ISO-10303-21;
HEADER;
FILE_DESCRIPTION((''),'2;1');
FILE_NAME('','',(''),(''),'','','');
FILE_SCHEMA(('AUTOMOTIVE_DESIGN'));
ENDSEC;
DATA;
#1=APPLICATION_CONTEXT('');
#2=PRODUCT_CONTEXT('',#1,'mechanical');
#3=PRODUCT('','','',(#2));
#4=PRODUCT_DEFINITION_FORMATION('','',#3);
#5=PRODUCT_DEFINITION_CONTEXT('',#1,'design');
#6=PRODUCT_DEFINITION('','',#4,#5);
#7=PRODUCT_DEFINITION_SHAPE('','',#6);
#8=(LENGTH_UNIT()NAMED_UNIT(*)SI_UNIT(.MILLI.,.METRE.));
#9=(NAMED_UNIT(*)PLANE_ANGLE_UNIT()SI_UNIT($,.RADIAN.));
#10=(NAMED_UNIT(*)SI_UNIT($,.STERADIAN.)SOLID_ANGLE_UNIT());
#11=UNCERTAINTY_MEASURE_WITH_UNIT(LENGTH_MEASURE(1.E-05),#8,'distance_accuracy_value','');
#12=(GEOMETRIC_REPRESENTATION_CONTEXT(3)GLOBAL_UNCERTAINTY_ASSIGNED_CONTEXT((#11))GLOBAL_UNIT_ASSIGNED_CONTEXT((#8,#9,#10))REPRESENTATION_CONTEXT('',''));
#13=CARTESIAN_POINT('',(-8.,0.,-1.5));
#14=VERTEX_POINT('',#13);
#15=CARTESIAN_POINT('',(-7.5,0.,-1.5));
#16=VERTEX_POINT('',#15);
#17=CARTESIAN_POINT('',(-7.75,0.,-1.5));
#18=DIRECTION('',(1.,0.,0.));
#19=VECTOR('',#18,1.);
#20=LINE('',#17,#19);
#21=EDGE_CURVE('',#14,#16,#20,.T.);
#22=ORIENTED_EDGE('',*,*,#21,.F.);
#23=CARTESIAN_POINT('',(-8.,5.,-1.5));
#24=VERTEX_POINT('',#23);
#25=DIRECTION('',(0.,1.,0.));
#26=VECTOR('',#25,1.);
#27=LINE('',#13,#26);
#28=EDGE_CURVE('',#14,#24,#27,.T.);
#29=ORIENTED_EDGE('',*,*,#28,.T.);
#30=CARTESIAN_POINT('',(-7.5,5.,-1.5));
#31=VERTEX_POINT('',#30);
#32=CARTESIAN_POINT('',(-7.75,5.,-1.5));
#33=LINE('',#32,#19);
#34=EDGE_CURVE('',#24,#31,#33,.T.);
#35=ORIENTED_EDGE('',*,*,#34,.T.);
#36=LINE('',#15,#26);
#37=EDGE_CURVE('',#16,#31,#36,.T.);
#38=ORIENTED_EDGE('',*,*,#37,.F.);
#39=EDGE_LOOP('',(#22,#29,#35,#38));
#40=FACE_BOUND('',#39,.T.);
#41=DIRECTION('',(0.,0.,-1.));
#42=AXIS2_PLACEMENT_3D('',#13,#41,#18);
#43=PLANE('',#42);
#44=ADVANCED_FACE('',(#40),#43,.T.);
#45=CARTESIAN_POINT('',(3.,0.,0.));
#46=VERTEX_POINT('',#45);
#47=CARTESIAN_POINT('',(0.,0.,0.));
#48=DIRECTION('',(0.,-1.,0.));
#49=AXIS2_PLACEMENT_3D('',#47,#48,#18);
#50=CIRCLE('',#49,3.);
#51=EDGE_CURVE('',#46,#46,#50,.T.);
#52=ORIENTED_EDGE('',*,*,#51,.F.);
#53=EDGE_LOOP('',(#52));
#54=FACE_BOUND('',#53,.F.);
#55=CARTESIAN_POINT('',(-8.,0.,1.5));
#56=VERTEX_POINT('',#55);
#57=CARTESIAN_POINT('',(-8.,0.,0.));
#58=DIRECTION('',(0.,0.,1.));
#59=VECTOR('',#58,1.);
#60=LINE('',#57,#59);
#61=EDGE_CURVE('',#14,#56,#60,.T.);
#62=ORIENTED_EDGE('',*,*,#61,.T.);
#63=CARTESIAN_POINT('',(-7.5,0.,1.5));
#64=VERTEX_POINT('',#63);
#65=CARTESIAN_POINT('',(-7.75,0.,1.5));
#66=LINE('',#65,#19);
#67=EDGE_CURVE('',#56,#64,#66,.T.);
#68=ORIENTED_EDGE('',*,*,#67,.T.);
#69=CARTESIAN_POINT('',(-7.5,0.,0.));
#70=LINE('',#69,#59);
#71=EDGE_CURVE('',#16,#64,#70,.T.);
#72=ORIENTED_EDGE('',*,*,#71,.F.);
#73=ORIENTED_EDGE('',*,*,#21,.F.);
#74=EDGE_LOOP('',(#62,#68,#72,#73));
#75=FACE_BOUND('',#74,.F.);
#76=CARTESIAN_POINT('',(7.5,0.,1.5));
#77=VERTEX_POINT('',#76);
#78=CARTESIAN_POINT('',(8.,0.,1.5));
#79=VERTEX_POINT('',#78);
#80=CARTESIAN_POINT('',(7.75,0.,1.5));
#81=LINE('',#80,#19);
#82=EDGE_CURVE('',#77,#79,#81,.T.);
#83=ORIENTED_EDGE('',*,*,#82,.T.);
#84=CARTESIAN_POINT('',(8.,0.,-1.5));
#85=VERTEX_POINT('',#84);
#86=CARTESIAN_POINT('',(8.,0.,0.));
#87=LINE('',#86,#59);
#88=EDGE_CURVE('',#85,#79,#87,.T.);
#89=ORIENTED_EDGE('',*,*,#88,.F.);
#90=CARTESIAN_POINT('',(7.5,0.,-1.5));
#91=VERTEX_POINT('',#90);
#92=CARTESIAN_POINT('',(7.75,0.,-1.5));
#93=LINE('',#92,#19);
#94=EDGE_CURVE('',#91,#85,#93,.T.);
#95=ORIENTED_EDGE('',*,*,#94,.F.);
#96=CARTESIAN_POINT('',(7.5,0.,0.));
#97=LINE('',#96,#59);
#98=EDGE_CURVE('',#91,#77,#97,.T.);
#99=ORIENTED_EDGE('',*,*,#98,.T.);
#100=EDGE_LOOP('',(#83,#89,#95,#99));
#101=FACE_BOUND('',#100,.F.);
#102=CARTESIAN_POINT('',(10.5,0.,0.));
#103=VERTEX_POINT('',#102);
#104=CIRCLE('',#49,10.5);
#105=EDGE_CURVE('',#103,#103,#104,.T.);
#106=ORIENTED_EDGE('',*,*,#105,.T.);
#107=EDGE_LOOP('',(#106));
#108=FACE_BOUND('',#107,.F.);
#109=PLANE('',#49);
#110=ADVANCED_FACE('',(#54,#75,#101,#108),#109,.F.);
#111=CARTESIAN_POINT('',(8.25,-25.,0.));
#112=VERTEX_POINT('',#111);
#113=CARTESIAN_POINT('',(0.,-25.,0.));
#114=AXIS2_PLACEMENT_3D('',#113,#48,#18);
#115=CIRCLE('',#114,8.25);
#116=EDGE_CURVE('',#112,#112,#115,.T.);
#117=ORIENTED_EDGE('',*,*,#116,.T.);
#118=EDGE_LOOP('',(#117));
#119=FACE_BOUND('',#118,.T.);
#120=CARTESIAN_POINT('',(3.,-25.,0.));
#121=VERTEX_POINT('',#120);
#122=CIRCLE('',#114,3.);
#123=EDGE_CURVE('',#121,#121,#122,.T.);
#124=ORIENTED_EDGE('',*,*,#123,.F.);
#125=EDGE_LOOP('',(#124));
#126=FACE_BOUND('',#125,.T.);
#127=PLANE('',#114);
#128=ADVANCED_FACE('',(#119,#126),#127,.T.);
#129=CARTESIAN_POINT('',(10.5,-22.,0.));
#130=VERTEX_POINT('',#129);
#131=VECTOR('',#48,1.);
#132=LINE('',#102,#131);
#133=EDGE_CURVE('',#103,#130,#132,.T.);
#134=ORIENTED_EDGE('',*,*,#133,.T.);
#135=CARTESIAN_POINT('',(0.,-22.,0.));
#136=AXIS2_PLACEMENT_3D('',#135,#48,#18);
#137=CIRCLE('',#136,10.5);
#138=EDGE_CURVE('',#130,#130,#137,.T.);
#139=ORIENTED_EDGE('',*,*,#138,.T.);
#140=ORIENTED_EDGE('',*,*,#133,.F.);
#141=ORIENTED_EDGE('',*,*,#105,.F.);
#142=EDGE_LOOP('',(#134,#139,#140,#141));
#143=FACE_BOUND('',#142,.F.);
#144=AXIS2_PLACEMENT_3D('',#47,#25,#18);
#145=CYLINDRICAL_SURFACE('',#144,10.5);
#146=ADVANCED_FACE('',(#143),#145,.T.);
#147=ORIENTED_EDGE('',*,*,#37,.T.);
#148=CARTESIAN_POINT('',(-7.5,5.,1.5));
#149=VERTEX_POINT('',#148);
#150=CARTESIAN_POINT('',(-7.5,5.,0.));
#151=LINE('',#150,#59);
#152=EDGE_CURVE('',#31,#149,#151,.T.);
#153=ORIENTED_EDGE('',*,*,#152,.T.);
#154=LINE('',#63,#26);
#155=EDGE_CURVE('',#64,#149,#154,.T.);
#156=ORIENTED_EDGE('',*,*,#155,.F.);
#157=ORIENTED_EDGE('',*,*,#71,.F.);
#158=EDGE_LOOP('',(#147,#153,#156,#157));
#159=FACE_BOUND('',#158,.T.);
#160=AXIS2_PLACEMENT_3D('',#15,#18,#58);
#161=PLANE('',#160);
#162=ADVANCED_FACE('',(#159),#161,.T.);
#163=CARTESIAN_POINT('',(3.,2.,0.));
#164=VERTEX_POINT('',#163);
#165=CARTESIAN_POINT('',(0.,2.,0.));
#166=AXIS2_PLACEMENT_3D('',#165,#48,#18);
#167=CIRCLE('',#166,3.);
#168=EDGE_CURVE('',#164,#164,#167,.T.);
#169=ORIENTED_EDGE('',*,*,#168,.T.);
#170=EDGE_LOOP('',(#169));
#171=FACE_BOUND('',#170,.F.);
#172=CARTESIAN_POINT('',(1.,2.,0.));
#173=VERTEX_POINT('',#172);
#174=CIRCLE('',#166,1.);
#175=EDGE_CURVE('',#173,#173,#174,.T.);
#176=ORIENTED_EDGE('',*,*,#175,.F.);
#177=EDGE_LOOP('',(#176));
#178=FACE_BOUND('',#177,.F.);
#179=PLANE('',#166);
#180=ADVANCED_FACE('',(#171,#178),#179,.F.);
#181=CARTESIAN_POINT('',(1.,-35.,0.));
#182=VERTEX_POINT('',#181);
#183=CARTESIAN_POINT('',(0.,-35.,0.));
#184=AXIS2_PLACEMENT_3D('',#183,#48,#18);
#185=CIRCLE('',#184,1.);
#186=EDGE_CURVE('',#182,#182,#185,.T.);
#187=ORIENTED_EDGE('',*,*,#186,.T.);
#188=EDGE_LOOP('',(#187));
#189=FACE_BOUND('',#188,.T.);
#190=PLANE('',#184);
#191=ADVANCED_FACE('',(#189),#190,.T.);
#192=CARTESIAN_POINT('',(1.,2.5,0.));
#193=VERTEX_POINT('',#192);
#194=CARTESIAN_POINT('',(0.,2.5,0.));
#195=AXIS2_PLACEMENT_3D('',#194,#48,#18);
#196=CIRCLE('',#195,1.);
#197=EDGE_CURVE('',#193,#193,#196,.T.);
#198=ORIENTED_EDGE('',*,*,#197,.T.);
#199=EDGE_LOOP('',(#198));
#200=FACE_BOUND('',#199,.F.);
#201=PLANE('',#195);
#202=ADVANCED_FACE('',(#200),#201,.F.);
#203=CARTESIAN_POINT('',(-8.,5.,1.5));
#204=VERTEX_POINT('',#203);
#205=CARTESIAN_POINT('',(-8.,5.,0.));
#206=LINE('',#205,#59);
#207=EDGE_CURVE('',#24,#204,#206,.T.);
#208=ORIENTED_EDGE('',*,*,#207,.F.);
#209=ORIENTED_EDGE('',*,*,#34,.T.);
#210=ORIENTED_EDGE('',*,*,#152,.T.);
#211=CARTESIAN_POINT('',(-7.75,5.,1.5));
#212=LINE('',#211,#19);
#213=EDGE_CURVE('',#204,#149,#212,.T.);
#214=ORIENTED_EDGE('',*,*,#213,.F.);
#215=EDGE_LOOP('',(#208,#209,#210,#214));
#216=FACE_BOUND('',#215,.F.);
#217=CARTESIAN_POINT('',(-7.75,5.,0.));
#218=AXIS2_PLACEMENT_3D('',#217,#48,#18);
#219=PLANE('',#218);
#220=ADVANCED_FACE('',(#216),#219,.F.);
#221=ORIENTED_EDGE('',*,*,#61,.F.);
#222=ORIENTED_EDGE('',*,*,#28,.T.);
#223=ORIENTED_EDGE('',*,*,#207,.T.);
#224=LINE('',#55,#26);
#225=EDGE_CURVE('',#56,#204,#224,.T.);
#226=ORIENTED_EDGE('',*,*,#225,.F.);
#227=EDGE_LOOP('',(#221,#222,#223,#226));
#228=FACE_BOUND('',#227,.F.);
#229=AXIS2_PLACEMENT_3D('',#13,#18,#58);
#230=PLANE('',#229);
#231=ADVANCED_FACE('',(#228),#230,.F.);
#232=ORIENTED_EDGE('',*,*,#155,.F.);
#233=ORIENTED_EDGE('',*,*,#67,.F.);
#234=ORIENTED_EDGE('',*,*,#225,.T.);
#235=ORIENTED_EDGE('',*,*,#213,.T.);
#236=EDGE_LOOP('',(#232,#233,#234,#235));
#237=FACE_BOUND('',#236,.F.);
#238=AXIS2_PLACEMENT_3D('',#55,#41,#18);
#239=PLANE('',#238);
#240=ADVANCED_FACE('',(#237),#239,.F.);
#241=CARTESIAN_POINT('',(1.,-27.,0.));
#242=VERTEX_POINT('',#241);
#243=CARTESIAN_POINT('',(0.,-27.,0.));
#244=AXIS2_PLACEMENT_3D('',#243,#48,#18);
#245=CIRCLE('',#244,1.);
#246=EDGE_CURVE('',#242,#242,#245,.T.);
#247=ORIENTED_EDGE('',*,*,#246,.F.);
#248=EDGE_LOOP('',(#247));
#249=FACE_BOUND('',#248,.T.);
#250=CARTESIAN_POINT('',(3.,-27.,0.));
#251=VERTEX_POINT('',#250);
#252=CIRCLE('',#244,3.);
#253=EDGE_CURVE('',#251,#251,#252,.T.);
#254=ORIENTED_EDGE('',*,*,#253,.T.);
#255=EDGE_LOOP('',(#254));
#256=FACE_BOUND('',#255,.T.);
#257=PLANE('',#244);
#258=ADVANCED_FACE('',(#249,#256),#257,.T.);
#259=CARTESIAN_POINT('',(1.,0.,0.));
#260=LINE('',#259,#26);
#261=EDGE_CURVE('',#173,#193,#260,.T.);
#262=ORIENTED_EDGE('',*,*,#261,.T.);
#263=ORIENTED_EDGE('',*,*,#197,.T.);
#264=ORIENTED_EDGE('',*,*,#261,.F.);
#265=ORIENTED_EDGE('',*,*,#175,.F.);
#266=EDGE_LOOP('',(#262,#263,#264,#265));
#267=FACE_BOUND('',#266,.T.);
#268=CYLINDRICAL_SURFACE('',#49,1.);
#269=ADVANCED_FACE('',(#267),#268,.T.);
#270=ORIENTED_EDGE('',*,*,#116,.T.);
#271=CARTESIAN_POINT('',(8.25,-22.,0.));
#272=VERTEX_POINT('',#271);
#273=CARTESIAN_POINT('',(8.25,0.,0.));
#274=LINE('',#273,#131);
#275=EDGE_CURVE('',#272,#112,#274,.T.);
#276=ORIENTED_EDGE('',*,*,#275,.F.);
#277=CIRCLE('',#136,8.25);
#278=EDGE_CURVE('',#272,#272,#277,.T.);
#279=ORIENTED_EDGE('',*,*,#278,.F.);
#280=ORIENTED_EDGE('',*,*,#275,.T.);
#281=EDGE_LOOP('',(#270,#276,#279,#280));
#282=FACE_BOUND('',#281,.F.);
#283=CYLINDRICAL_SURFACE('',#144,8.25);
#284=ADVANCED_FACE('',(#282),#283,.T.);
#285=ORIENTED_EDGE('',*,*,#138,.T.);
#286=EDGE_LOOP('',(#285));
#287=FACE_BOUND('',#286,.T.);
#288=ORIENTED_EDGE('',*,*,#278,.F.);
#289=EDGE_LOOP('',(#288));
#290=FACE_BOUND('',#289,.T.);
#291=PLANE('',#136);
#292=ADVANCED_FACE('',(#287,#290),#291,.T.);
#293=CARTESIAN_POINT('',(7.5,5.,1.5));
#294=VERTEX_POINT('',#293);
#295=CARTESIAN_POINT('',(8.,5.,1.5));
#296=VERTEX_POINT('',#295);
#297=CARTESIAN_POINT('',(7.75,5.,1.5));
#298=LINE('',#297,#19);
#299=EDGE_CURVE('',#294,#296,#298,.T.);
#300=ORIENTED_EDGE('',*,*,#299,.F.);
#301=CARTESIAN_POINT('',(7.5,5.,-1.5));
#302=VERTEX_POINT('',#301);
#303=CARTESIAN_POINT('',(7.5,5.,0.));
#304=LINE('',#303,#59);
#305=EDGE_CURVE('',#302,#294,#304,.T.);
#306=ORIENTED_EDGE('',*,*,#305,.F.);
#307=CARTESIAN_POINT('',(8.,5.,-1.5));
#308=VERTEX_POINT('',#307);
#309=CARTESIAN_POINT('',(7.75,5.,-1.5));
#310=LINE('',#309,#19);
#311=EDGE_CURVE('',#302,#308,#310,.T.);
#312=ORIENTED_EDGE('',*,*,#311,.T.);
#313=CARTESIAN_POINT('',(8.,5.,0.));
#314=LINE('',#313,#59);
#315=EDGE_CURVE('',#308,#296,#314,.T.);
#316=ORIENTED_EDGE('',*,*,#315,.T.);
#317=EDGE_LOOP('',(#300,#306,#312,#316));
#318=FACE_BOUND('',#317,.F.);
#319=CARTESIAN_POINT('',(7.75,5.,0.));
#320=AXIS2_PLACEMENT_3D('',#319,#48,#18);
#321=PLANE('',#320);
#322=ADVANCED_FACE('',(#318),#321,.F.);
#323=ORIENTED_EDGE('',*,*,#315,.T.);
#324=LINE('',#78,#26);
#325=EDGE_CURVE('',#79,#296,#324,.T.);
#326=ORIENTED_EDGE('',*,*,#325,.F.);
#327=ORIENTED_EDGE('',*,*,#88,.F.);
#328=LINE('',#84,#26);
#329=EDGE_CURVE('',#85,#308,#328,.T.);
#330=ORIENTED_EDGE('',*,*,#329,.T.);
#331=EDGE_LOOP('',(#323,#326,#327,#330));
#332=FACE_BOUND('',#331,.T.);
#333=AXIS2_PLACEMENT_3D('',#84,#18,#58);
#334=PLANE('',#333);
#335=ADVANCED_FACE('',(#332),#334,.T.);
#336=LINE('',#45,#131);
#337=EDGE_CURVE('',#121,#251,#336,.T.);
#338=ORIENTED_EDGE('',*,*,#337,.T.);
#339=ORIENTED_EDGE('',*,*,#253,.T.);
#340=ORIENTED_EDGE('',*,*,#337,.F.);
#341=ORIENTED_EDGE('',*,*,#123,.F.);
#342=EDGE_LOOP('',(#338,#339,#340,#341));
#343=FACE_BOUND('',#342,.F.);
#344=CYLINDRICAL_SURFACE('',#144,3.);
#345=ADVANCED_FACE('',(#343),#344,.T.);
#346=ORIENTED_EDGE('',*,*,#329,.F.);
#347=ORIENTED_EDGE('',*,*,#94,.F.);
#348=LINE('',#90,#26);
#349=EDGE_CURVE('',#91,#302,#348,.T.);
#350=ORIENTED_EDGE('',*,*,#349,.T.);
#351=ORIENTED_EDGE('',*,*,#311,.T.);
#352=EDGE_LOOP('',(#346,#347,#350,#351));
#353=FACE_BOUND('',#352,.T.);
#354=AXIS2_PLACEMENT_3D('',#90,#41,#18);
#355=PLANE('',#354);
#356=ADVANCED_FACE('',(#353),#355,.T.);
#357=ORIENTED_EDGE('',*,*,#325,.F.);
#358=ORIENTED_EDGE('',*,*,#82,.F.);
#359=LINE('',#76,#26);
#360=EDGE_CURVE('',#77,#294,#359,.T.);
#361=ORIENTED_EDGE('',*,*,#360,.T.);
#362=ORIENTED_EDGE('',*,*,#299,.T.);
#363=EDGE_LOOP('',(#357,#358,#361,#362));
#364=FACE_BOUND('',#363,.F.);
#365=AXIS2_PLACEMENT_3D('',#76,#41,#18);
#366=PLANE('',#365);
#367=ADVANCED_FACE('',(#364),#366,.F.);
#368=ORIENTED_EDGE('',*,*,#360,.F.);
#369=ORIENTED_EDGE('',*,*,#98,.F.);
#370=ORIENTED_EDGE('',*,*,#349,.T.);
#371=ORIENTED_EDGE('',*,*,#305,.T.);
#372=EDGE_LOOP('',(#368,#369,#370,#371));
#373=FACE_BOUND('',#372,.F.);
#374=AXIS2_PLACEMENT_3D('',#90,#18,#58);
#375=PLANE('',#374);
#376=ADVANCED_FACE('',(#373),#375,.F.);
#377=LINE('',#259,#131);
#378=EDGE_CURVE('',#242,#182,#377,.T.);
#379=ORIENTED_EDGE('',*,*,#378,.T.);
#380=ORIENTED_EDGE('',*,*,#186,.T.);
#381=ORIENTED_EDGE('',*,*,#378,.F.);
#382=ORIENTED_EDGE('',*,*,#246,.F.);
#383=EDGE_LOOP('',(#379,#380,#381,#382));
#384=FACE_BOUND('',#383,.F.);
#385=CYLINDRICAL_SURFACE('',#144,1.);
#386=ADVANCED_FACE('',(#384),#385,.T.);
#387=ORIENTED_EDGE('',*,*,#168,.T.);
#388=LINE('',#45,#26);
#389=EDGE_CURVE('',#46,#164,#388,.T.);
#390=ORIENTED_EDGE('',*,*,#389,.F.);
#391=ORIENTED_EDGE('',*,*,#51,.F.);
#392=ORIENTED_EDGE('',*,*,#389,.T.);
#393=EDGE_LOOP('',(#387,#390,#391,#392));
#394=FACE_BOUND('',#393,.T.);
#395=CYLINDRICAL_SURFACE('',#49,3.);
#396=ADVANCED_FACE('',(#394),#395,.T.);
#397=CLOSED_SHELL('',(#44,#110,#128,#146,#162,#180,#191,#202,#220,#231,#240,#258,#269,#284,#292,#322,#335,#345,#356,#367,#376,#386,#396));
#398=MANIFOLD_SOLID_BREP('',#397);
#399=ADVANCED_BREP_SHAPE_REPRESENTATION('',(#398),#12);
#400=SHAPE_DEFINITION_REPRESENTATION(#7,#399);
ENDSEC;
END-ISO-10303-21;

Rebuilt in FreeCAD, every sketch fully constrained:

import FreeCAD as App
import Part
import Sketcher

V = App.Vector


def add_polygon(sketch, points):
    """Adds a closed chain of lines whose ends are joined by coincident constraints."""
    first, n = sketch.GeometryCount, len(points)
    for a, b in zip(points, points[1:] + points[:1]):
        sketch.addGeometry(Part.LineSegment(App.Vector(*a, 0), App.Vector(*b, 0)), False)
    for i in range(n):
        sketch.addConstraint(Sketcher.Constraint("Coincident", first + i, 2, first + (i + 1) % n, 1))

doc = App.newDocument("Part")
body = doc.addObject("PartDesign::Body", "Body")

# Sketch on XZ plane
sketch1 = doc.addObject("Sketcher::SketchObject", "Sketch")
body.addObject(sketch1)
sketch1.AttachmentSupport = (doc.XZ_Plane, [""])
sketch1.MapMode = "FlatFace"
sketch1.addGeometry(Part.Circle(V(0, 0, 0), V(0, 0, 1), 10.5), False)
sketch1.addGeometry(Part.Circle(V(0, 0, 0), V(0, 0, 1), 8.25), False)
sketch1.addConstraint(Sketcher.Constraint("Coincident", 0, 3, -1, 1))
sketch1.addConstraint(Sketcher.Constraint("Coincident", 1, 3, -1, 1))
sketch1.addConstraint(Sketcher.Constraint("Diameter", 0, 21.0))
sketch1.addConstraint(Sketcher.Constraint("Diameter", 1, 16.5))
pad1 = doc.addObject("PartDesign::Pad", "Pad")
body.addObject(pad1)
pad1.Profile = sketch1
pad1.Length = 22

# Sketch on XZ plane
sketch2 = doc.addObject("Sketcher::SketchObject", "Sketch001")
body.addObject(sketch2)
sketch2.AttachmentSupport = (doc.XZ_Plane, [""])
sketch2.MapMode = "FlatFace"
sketch2.addGeometry(Part.Circle(V(0, 0, 0), V(0, 0, 1), 8.25), False)
sketch2.addGeometry(Part.Circle(V(0, 0, 0), V(0, 0, 1), 3), False)
sketch2.addConstraint(Sketcher.Constraint("Coincident", 0, 3, -1, 1))
sketch2.addConstraint(Sketcher.Constraint("Coincident", 1, 3, -1, 1))
sketch2.addConstraint(Sketcher.Constraint("Diameter", 1, 6.0))
sketch2.addConstraint(Sketcher.Constraint("Diameter", 0, 16.5))
pad2 = doc.addObject("PartDesign::Pad", "Pad001")
body.addObject(pad2)
pad2.Profile = sketch2
pad2.Length = 25

# Sketch on XZ plane
sketch3 = doc.addObject("Sketcher::SketchObject", "Sketch002")
body.addObject(sketch3)
sketch3.AttachmentSupport = (doc.XZ_Plane, [""])
sketch3.MapMode = "FlatFace"
sketch3.addGeometry(Part.Circle(V(0, 0, 0), V(0, 0, 1), 3), False)
sketch3.addGeometry(Part.Circle(V(0, 0, 0), V(0, 0, 1), 1), False)
sketch3.addConstraint(Sketcher.Constraint("Coincident", 0, 3, -1, 1))
sketch3.addConstraint(Sketcher.Constraint("Coincident", 1, 3, -1, 1))
sketch3.addConstraint(Sketcher.Constraint("Diameter", 0, 6.0))
sketch3.addConstraint(Sketcher.Constraint("Diameter", 1, 2.0))
pad3 = doc.addObject("PartDesign::Pad", "Pad002")
body.addObject(pad3)
pad3.Profile = sketch3
pad3.Type = "TwoLengths"
pad3.Length = 27
pad3.Length2 = 2

# Sketch on XZ plane
sketch4 = doc.addObject("Sketcher::SketchObject", "Sketch003")
body.addObject(sketch4)
sketch4.AttachmentSupport = (doc.XZ_Plane, [""])
sketch4.MapMode = "FlatFace"
sketch4.addGeometry(Part.Circle(V(0, 0, 0), V(0, 0, 1), 1), False)
sketch4.addConstraint(Sketcher.Constraint("Coincident", 0, 3, -1, 1))
sketch4.addConstraint(Sketcher.Constraint("Diameter", 0, 2.0))
pad4 = doc.addObject("PartDesign::Pad", "Pad003")
body.addObject(pad4)
pad4.Profile = sketch4
pad4.Type = "TwoLengths"
pad4.Length = 35
pad4.Length2 = 2.5

# Sketch on XZ plane
sketch5 = doc.addObject("Sketcher::SketchObject", "Sketch004")
body.addObject(sketch5)
sketch5.AttachmentSupport = (doc.XZ_Plane, [""])
sketch5.MapMode = "FlatFace"
add_polygon(sketch5, [(-8, 1.5), (-8, -1.5), (-7.5, -1.5), (-7.5, 1.5)])  # lines 0-3
add_polygon(sketch5, [(7.5, 1.5), (7.5, -1.5), (8, -1.5), (8, 1.5)])  # lines 4-7
sketch5.addConstraint(Sketcher.Constraint("Vertical", 0))
sketch5.addConstraint(Sketcher.Constraint("Horizontal", 1))
sketch5.addConstraint(Sketcher.Constraint("Vertical", 2))
sketch5.addConstraint(Sketcher.Constraint("Horizontal", 3))
sketch5.addConstraint(Sketcher.Constraint("Vertical", 4))
sketch5.addConstraint(Sketcher.Constraint("Horizontal", 5))
sketch5.addConstraint(Sketcher.Constraint("Vertical", 6))
sketch5.addConstraint(Sketcher.Constraint("Horizontal", 7))
sketch5.addConstraint(Sketcher.Constraint("Symmetric", 2, 2, 4, 2, -1, 1))
sketch5.addConstraint(Sketcher.Constraint("Symmetric", 0, 2, 6, 2, -1, 1))
sketch5.addConstraint(Sketcher.Constraint("Horizontal", 1, 2, 4, 2))
sketch5.addConstraint(Sketcher.Constraint("DistanceY", 0, 2, 0, 1, 3.0))
sketch5.addConstraint(Sketcher.Constraint("DistanceX", 1, 1, 1, 2, 0.5))
sketch5.addConstraint(Sketcher.Constraint("DistanceX", 0, 2, -1, 1, 8.0))
pad5 = doc.addObject("PartDesign::Pad", "Pad004")
body.addObject(pad5)
pad5.Profile = sketch5
pad5.Length = 5
pad5.Reversed = True

doc.recompute()
